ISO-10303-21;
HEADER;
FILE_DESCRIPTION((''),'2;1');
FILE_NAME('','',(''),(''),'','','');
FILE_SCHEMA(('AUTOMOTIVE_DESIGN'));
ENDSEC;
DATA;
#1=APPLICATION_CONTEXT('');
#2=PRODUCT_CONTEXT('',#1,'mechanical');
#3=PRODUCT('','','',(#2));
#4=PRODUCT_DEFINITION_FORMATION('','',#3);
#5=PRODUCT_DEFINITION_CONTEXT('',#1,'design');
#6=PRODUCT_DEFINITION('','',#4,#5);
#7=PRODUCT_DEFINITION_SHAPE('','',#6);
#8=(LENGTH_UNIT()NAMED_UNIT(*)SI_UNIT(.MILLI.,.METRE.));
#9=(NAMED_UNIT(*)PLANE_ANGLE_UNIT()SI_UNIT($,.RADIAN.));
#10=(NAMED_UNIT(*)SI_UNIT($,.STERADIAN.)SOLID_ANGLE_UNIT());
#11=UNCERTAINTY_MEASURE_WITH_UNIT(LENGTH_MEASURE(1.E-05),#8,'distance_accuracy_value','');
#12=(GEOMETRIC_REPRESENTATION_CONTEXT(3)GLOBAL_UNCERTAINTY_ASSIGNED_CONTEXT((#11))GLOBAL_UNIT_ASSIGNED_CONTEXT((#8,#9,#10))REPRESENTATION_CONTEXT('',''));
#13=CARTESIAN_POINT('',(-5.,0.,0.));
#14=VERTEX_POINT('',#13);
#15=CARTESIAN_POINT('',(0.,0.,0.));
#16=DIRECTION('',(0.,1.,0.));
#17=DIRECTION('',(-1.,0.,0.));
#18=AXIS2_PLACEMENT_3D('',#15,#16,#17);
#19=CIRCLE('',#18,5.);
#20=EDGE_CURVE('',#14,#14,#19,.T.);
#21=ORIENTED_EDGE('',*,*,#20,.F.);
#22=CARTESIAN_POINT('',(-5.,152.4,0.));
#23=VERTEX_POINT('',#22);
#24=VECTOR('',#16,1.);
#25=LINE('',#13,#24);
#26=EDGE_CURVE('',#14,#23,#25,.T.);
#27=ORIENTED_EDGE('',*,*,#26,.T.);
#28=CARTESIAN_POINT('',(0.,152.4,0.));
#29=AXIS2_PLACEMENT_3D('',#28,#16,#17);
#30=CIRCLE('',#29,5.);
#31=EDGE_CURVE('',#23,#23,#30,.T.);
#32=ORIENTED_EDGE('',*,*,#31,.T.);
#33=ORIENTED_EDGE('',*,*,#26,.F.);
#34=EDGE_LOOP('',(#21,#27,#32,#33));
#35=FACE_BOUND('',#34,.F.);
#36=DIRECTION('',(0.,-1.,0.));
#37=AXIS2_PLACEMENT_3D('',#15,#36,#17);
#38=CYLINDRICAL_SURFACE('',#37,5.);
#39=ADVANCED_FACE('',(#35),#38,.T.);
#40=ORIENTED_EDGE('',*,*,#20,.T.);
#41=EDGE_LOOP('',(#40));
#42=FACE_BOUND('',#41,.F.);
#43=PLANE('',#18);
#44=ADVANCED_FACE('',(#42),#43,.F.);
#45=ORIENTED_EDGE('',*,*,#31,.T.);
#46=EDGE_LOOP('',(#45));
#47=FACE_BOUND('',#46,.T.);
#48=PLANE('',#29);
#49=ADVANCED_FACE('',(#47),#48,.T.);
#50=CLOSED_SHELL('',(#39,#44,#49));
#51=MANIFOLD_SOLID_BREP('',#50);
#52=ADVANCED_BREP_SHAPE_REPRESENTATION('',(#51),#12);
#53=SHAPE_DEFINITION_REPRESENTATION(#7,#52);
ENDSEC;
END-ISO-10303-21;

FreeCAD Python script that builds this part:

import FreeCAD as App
import Part
import Sketcher

V = App.Vector
Q = App.Units.Quantity

doc = App.newDocument("Part")
params = doc.addObject("Spreadsheet::Sheet", "Params")
for row, (alias, value) in enumerate([
    ("pad1_length", "6 in"),
], start=1):
    params.set(f"A{row}", alias)
    params.set(f"B{row}", "=" + value)
    params.setAlias(f"B{row}", alias)

body = doc.addObject("PartDesign::Body", "Body")

# Sketch on XZ plane
sketch1 = doc.addObject("Sketcher::SketchObject", "Sketch")
body.addObject(sketch1)
sketch1.AttachmentSupport = (doc.XZ_Plane, [""])
sketch1.MapMode = "FlatFace"
sketch1.addGeometry(Part.Circle(V(0, 0, 0), V(0, 0, 1), 5), False)
sketch1.addConstraint([
    Sketcher.Constraint("Coincident", 0, 3, -1, 1),
    Sketcher.Constraint("Diameter", 0, Q("0.3937 in")),
])
pad1 = doc.addObject("PartDesign::Pad", "Pad")
body.addObject(pad1)
pad1.Profile = sketch1
pad1.setExpression("Length", "Params.pad1_length")
pad1.Reversed = True

doc.recompute()
